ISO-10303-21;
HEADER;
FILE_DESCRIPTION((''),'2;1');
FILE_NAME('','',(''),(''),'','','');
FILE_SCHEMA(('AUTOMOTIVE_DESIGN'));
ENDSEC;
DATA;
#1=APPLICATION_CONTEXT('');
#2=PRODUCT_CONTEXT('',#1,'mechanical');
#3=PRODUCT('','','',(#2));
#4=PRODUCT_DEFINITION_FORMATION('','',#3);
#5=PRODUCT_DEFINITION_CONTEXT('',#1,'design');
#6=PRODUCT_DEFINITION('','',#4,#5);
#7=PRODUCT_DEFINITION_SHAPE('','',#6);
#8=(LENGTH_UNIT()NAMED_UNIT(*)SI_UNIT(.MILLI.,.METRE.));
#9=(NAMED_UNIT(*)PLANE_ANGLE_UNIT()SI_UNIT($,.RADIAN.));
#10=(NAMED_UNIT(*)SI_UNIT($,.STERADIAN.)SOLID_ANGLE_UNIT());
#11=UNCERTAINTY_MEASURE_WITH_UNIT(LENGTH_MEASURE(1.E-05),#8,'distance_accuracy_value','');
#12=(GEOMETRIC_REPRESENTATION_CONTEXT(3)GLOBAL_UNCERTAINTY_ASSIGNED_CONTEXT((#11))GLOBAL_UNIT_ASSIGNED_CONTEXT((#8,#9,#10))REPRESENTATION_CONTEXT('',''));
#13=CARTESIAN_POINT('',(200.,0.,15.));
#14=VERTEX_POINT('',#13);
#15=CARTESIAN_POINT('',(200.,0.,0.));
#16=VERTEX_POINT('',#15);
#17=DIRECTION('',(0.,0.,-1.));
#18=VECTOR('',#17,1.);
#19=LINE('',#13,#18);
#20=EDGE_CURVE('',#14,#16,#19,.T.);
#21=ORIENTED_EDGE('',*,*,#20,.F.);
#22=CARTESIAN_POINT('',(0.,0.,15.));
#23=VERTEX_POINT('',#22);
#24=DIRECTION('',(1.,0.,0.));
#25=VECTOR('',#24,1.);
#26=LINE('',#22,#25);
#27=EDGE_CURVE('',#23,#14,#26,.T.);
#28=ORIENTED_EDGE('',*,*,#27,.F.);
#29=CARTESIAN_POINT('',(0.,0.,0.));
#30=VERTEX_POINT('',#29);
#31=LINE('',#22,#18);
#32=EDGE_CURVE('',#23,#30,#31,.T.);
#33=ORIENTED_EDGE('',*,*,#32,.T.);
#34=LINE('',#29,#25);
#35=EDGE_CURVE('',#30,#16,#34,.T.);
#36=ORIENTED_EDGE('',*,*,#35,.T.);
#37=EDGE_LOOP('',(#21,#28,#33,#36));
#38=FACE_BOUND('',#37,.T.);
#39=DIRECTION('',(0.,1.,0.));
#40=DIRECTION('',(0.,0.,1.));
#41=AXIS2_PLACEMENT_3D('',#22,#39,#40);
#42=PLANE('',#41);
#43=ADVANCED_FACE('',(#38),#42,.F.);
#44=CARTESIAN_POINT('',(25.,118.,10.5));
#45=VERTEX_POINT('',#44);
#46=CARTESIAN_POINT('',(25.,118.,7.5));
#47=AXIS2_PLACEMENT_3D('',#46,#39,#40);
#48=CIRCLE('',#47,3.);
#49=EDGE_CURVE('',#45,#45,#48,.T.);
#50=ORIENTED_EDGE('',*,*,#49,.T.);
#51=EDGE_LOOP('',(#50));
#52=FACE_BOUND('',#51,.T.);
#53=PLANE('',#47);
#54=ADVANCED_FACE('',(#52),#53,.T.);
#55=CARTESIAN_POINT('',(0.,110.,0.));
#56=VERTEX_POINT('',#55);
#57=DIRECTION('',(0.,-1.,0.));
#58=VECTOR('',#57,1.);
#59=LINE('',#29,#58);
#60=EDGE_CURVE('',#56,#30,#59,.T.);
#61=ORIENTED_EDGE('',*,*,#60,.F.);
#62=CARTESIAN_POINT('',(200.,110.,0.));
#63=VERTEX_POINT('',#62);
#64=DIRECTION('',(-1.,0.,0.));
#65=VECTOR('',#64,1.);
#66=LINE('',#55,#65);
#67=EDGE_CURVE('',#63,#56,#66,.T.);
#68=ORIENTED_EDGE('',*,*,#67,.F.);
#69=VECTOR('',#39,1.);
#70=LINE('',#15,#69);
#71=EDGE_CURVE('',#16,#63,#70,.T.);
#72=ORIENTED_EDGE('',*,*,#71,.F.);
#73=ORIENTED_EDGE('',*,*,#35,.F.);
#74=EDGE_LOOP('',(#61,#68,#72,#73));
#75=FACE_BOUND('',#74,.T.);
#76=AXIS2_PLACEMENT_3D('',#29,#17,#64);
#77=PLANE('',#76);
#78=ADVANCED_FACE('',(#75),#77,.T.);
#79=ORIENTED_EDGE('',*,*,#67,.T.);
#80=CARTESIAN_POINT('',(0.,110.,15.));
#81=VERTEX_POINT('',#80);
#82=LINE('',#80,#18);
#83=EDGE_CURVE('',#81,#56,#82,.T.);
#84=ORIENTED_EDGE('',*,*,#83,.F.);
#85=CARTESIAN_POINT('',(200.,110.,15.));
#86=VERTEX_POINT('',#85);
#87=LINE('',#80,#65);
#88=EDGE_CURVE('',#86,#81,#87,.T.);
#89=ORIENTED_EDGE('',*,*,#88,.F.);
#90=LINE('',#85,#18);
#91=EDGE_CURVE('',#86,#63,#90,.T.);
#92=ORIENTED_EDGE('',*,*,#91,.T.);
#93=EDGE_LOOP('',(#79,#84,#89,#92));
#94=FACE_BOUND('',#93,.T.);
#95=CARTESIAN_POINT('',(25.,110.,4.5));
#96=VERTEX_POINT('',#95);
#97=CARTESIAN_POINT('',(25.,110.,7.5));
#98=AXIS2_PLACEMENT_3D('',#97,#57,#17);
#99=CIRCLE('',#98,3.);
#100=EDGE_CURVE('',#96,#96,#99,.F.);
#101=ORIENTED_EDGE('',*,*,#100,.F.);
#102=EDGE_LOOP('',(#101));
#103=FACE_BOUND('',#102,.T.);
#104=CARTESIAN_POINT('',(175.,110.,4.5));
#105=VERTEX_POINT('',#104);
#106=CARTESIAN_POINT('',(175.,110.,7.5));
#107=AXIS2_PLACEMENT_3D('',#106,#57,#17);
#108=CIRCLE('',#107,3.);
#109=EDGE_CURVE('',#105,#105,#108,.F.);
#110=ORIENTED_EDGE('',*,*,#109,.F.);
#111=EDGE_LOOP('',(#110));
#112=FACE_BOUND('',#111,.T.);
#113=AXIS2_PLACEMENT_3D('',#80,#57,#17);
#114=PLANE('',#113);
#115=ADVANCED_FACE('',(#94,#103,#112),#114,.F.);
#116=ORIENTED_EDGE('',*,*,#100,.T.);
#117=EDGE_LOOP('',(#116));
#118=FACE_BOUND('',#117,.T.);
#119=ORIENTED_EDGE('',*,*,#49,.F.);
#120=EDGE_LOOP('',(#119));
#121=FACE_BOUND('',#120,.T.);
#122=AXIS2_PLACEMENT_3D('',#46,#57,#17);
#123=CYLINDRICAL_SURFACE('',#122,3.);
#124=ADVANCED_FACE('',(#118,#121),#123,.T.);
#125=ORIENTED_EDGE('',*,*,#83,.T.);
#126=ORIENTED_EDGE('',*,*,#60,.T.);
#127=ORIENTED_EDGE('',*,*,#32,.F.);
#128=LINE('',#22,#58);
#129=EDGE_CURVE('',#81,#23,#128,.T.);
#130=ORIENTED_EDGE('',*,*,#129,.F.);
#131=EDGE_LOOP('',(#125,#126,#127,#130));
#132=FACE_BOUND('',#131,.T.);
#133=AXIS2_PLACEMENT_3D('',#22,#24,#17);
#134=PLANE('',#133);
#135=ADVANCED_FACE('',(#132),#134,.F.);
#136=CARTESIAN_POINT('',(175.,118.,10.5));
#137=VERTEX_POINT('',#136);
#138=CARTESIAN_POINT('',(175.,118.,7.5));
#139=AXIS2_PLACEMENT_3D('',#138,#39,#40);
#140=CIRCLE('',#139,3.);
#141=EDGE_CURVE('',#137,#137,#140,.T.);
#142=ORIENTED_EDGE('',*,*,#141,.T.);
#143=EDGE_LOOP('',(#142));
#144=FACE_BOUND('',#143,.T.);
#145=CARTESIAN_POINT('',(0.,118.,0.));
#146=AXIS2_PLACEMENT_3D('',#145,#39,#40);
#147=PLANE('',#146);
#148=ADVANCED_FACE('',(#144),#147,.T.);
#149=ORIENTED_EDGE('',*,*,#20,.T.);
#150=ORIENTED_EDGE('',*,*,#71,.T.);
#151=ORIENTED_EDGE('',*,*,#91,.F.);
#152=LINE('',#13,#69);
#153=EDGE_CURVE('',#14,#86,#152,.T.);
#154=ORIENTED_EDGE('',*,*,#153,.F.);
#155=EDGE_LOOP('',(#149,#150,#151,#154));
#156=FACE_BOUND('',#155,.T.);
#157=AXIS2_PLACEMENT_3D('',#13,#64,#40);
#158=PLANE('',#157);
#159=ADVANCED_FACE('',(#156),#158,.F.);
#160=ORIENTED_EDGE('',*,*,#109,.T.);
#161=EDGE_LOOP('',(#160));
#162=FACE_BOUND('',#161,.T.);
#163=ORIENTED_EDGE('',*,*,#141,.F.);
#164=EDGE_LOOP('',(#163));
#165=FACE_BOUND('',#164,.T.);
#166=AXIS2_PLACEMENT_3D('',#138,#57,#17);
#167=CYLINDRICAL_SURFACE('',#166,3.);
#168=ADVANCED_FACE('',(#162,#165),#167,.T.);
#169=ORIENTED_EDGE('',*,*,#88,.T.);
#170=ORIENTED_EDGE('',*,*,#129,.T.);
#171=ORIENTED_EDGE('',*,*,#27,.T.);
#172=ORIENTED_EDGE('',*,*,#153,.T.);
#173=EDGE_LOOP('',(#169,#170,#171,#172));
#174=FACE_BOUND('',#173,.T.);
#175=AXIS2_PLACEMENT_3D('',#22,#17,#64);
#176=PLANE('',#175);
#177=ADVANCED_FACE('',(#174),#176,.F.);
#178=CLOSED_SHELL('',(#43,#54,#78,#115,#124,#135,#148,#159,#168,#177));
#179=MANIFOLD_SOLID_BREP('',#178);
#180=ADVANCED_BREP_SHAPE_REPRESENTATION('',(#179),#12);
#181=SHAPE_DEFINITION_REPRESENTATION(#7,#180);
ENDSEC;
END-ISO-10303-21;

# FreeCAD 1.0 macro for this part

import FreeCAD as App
import Part
import Sketcher
from FreeCAD import Vector


def add_polygon(sketch, points):
    """Adds a closed chain of lines whose ends are joined by coincident constraints."""
    first, n = sketch.GeometryCount, len(points)
    for a, b in zip(points, points[1:] + points[:1]):
        sketch.addGeometry(Part.LineSegment(App.Vector(*a, 0), App.Vector(*b, 0)), False)
    for i in range(n):
        sketch.addConstraint(Sketcher.Constraint("Coincident", first + i, 2, first + (i + 1) % n, 1))

doc = App.newDocument("Part")
body = doc.addObject("PartDesign::Body", "Body")

sketch1 = body.newObject("Sketcher::SketchObject", "Sketch")
sketch1.AttachmentSupport = (doc.getObject("XY_Plane"), [""])
sketch1.MapMode = "FlatFace"
add_polygon(sketch1, [(0, 110), (0, 0), (200, 0), (200, 110)])
sketch1.addConstraint([
    Sketcher.Constraint("Vertical", 0),
    Sketcher.Constraint("Horizontal", 1),
    Sketcher.Constraint("Vertical", 2),
    Sketcher.Constraint("Horizontal", 3),
    Sketcher.Constraint("Coincident", 0, 2, -1, 1),
    Sketcher.Constraint("DistanceX", 1, 1, 1, 2, 200.0),
    Sketcher.Constraint("DistanceY", 0, 2, 0, 1, 110.0),
])
pad1 = body.newObject("PartDesign::Pad", "Pad")
pad1.Profile = sketch1
pad1.Length = 15

sketch2 = body.newObject("Sketcher::SketchObject", "Sketch001")
sketch2.AttachmentSupport = (doc.getObject("XZ_Plane"), [""])
sketch2.MapMode = "FlatFace"
sketch2.AttachmentOffset = App.Placement(Vector(0, 0, -110), App.Rotation())
sketch2.addGeometry([
    Part.Circle(Vector(175, 7.5, 0), Vector(0, 0, 1), 3),
    Part.Circle(Vector(25, 7.5, 0), Vector(0, 0, 1), 3),
], False)
sketch2.addConstraint([
    Sketcher.Constraint("Equal", 0, 1),
    Sketcher.Constraint("Horizontal", 0, 3, 1, 3),
    Sketcher.Constraint("Diameter", 0, 6.0),
    Sketcher.Constraint("DistanceX", -1, 1, 0, 3, 175.0),
    Sketcher.Constraint("DistanceX", -1, 1, 1, 3, 25.0),
    Sketcher.Constraint("DistanceY", -1, 1, 0, 3, 7.5),
])
pad2 = body.newObject("PartDesign::Pad", "Pad001")
pad2.Profile = sketch2
pad2.Length = 8
pad2.Reversed = True

doc.recompute()
